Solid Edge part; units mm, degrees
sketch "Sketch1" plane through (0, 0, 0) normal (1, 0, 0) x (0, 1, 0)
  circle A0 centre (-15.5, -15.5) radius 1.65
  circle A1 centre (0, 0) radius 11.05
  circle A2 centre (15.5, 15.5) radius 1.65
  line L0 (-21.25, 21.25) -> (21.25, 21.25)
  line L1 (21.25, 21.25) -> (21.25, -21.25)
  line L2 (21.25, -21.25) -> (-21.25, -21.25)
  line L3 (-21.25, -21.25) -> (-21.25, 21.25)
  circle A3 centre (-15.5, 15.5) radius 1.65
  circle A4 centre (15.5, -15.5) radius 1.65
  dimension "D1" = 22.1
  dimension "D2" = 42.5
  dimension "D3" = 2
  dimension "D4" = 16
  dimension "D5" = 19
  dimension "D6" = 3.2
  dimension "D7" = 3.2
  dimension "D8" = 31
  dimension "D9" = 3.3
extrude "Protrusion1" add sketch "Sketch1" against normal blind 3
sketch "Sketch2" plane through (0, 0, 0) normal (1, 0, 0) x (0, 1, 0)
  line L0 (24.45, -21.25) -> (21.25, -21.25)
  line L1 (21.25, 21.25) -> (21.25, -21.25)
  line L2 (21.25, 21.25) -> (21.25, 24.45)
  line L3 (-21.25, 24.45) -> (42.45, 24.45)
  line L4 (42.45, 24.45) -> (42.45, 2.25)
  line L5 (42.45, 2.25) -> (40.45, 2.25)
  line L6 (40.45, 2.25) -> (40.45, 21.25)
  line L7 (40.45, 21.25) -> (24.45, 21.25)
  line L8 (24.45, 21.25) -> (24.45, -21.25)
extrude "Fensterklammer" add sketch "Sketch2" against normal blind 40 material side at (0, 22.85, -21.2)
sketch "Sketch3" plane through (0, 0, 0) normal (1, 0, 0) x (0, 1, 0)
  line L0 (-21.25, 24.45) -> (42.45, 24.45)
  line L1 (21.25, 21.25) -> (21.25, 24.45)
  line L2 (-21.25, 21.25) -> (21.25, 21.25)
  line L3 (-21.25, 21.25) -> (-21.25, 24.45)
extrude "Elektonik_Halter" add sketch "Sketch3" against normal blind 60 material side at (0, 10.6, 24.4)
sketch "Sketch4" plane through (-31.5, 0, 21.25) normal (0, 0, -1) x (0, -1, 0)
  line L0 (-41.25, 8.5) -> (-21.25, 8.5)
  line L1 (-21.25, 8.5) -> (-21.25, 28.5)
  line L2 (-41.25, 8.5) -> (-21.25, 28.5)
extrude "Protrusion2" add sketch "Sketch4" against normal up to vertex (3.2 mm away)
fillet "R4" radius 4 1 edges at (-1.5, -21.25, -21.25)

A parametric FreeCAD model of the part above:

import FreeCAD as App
import Part
import Sketcher
from FreeCAD import Vector


def edges_at(feature, points):
    """Names of the edges that pass closest to the given points."""
    edges = feature.Shape.Edges
    near = lambda p: min(range(len(edges)), key=lambda i: edges[i].distToShape(Part.Vertex(*p))[0])
    return sorted({f"Edge{near(p) + 1}" for p in points})

doc = App.newDocument("Part")
body = doc.addObject("PartDesign::Body", "Body")

# Sketch on YZ plane
sketch1 = doc.addObject("Sketcher::SketchObject", "Sketch")
body.addObject(sketch1)
sketch1.AttachmentSupport = (doc.YZ_Plane, [""])
sketch1.MapMode = "FlatFace"
sketch1.addGeometry(Part.LineSegment(Vector(21.2, 21.2, 0), Vector(-21.2, 21.2, 0)), False)
sketch1.addGeometry(Part.LineSegment(Vector(-21.2, 21.2, 0), Vector(-21.2, -21.2, 0)), False)
sketch1.addGeometry(Part.LineSegment(Vector(-21.2, -21.2, 0), Vector(21.2, -21.2, 0)), False)
sketch1.addGeometry(Part.LineSegment(Vector(21.2, -21.2, 0), Vector(21.2, 21.2, 0)), False)
sketch1.addGeometry(Part.Circle(Vector(-15.5, -15.5, 0), Vector(0, 0, 1), 1.6), False)
sketch1.addGeometry(Part.Circle(Vector(15.5, -15.5, 0), Vector(0, 0, 1), 1.6), False)
sketch1.addGeometry(Part.Circle(Vector(-15.5, 15.5, 0), Vector(0, 0, 1), 1.6), False)
sketch1.addGeometry(Part.Circle(Vector(0, 0, 0), Vector(0, 0, 1), 11.1), False)
sketch1.addGeometry(Part.Circle(Vector(15.5, 15.5, 0), Vector(0, 0, 1), 1.6), False)
sketch1.addConstraint(Sketcher.Constraint("Coincident", 0, 2, 1, 1))
sketch1.addConstraint(Sketcher.Constraint("Coincident", 1, 2, 2, 1))
sketch1.addConstraint(Sketcher.Constraint("Coincident", 2, 2, 3, 1))
sketch1.addConstraint(Sketcher.Constraint("Coincident", 3, 2, 0, 1))
sketch1.addConstraint(Sketcher.Constraint("Horizontal", 0))
sketch1.addConstraint(Sketcher.Constraint("Vertical", 1))
sketch1.addConstraint(Sketcher.Constraint("Horizontal", 2))
sketch1.addConstraint(Sketcher.Constraint("Vertical", 3))
sketch1.addConstraint(Sketcher.Constraint("Coincident", 7, 3, -1, 1))
sketch1.addConstraint(Sketcher.Constraint("Equal", 4, 5))
sketch1.addConstraint(Sketcher.Constraint("Equal", 5, 6))
sketch1.addConstraint(Sketcher.Constraint("Equal", 6, 8))
sketch1.addConstraint(Sketcher.Constraint("Symmetric", 5, 3, 6, 3, -1, 1))
sketch1.addConstraint(Sketcher.Constraint("Symmetric", 4, 3, 8, 3, -1, 1))
sketch1.addConstraint(Sketcher.Constraint("Symmetric", 0, 2, 2, 2, -1, 1))
sketch1.addConstraint(Sketcher.Constraint("Symmetric", 4, 3, 5, 3, -2))
sketch1.addConstraint(Sketcher.Constraint("Equal", 2, 1))
sketch1.addConstraint(Sketcher.Constraint("Diameter", 4, 3.3))
sketch1.addConstraint(Sketcher.Constraint("Diameter", 7, 22.1))
sketch1.addConstraint(Sketcher.Constraint("DistanceX", 0, 2, 0, 1, 42.5))
sketch1.addConstraint(Sketcher.Constraint("DistanceX", 4, 3, 5, 3, 31.0))
sketch1.addConstraint(Sketcher.Constraint("DistanceY", 4, 3, 6, 3, 31.0))
pad1 = doc.addObject("PartDesign::Pad", "Pad")
body.addObject(pad1)
pad1.Profile = sketch1
pad1.Length = 3
pad1.Reversed = True

# Sketch on YZ plane
sketch2 = doc.addObject("Sketcher::SketchObject", "Sketch001")
body.addObject(sketch2)
sketch2.AttachmentSupport = (doc.YZ_Plane, [""])
sketch2.MapMode = "FlatFace"
sketch2.addGeometry(Part.LineSegment(Vector(21.2, -21.2, 0), Vector(24.4, -21.2, 0)), False)
sketch2.addGeometry(Part.LineSegment(Vector(24.4, -21.2, 0), Vector(24.4, 21.2, 0)), False)
sketch2.addGeometry(Part.LineSegment(Vector(24.4, 21.2, 0), Vector(40.5, 21.2, 0)), False)
sketch2.addGeometry(Part.LineSegment(Vector(40.5, 21.2, 0), Vector(40.5, 2.2, 0)), False)
sketch2.addGeometry(Part.LineSegment(Vector(40.5, 2.2, 0), Vector(42.5, 2.2, 0)), False)
sketch2.addGeometry(Part.LineSegment(Vector(42.5, 2.2, 0), Vector(42.5, 24.4, 0)), False)
sketch2.addGeometry(Part.LineSegment(Vector(42.5, 24.4, 0), Vector(21.2, 24.4, 0)), False)
sketch2.addGeometry(Part.LineSegment(Vector(21.2, 24.4, 0), Vector(21.2, -21.2, 0)), False)
sketch2.addConstraint(Sketcher.Constraint("Coincident", 0, 2, 1, 1))
sketch2.addConstraint(Sketcher.Constraint("Coincident", 1, 2, 2, 1))
sketch2.addConstraint(Sketcher.Constraint("Coincident", 2, 2, 3, 1))
sketch2.addConstraint(Sketcher.Constraint("Coincident", 3, 2, 4, 1))
sketch2.addConstraint(Sketcher.Constraint("Coincident", 4, 2, 5, 1))
sketch2.addConstraint(Sketcher.Constraint("Coincident", 5, 2, 6, 1))
sketch2.addConstraint(Sketcher.Constraint("Coincident", 6, 2, 7, 1))
sketch2.addConstraint(Sketcher.Constraint("Coincident", 7, 2, 0, 1))
sketch2.addConstraint(Sketcher.Constraint("Horizontal", 0))
sketch2.addConstraint(Sketcher.Constraint("Vertical", 1))
sketch2.addConstraint(Sketcher.Constraint("Horizontal", 2))
sketch2.addConstraint(Sketcher.Constraint("Vertical", 3))
sketch2.addConstraint(Sketcher.Constraint("Horizontal", 4))
sketch2.addConstraint(Sketcher.Constraint("Vertical", 5))
sketch2.addConstraint(Sketcher.Constraint("Horizontal", 6))
sketch2.addConstraint(Sketcher.Constraint("Vertical", 7))
sketch2.addConstraint(Sketcher.Constraint("DistanceX", 2, 1, 2, 2, 16.0))
sketch2.addConstraint(Sketcher.Constraint("DistanceX", 4, 1, 4, 2, 2.0))
sketch2.addConstraint(Sketcher.Constraint("DistanceY", 3, 2, 3, 1, 19.0))
sketch2.addConstraint(Sketcher.Constraint("DistanceX", 0, 1, 0, 2, 3.2))
sketch2.addConstraint(Sketcher.Constraint("DistanceY", 1, 1, 1, 2, 42.5))
sketch2.addConstraint(Sketcher.Constraint("DistanceY", 5, 1, 5, 2, 22.2))
sketch2.addConstraint(Sketcher.Constraint("DistanceX", -1, 1, 0, 2, 24.45))
sketch2.addConstraint(Sketcher.Constraint("DistanceY", 0, 2, -1, 1, 21.25))
pad2 = doc.addObject("PartDesign::Pad", "Pad001")
body.addObject(pad2)
pad2.Profile = sketch2
pad2.Length = 40
pad2.Reversed = True

# Sketch on YZ plane
sketch3 = doc.addObject("Sketcher::SketchObject", "Sketch002")
body.addObject(sketch3)
sketch3.AttachmentSupport = (doc.YZ_Plane, [""])
sketch3.MapMode = "FlatFace"
sketch3.addGeometry(Part.LineSegment(Vector(21.2, 24.4, 0), Vector(-21.2, 24.4, 0)), False)
sketch3.addGeometry(Part.LineSegment(Vector(-21.2, 24.4, 0), Vector(-21.2, 21.2, 0)), False)
sketch3.addGeometry(Part.LineSegment(Vector(-21.2, 21.2, 0), Vector(21.2, 21.2, 0)), False)
sketch3.addGeometry(Part.LineSegment(Vector(21.2, 21.2, 0), Vector(21.2, 24.4, 0)), False)
sketch3.addConstraint(Sketcher.Constraint("Coincident", 0, 2, 1, 1))
sketch3.addConstraint(Sketcher.Constraint("Coincident", 1, 2, 2, 1))
sketch3.addConstraint(Sketcher.Constraint("Coincident", 2, 2, 3, 1))
sketch3.addConstraint(Sketcher.Constraint("Coincident", 3, 2, 0, 1))
sketch3.addConstraint(Sketcher.Constraint("Horizontal", 0))
sketch3.addConstraint(Sketcher.Constraint("Vertical", 1))
sketch3.addConstraint(Sketcher.Constraint("Horizontal", 2))
sketch3.addConstraint(Sketcher.Constraint("Vertical", 3))
sketch3.addConstraint(Sketcher.Constraint("DistanceX", 0, 2, 0, 1, 42.5))
sketch3.addConstraint(Sketcher.Constraint("DistanceY", 1, 2, 1, 1, 3.2))
sketch3.addConstraint(Sketcher.Constraint("DistanceX", 0, 2, -1, 1, 21.25))
sketch3.addConstraint(Sketcher.Constraint("DistanceY", -1, 1, 0, 2, 24.45))
pad3 = doc.addObject("PartDesign::Pad", "Pad002")
body.addObject(pad3)
pad3.Profile = sketch3
pad3.Length = 60
pad3.Reversed = True

# Sketch on XY plane
sketch4 = doc.addObject("Sketcher::SketchObject", "Sketch003")
body.addObject(sketch4)
sketch4.AttachmentSupport = (doc.XY_Plane, [""])
sketch4.MapMode = "FlatFace"
sketch4.AttachmentOffset = App.Placement(Vector(0, 0, 21.25), App.Rotation())
sketch4.addGeometry(Part.LineSegment(Vector(-60, 21, 0), Vector(-40, 41, 0)), False)
sketch4.addGeometry(Part.LineSegment(Vector(-40, 41, 0), Vector(-40, 21, 0)), False)
sketch4.addGeometry(Part.LineSegment(Vector(-40, 21, 0), Vector(-60, 21, 0)), False)
sketch4.addConstraint(Sketcher.Constraint("Coincident", 0, 2, 1, 1))
sketch4.addConstraint(Sketcher.Constraint("Coincident", 1, 2, 2, 1))
sketch4.addConstraint(Sketcher.Constraint("Coincident", 2, 2, 0, 1))
sketch4.addConstraint(Sketcher.Constraint("Vertical", 1))
sketch4.addConstraint(Sketcher.Constraint("Horizontal", 2))
sketch4.addConstraint(Sketcher.Constraint("Equal", 2, 1))
sketch4.addConstraint(Sketcher.Constraint("DistanceX", 2, 2, 2, 1, 20.0))
sketch4.addConstraint(Sketcher.Constraint("DistanceX", 0, 2, -1, 1, 40.0))
sketch4.addConstraint(Sketcher.Constraint("DistanceY", -1, 1, 0, 2, 41.25))
pad4 = doc.addObject("PartDesign::Pad", "Pad003")
body.addObject(pad4)
pad4.Profile = sketch4
pad4.Length = 3.2
doc.recompute()

fillet = doc.addObject("PartDesign::Fillet", "Fillet")
body.addObject(fillet)
fillet.Base = (pad4, edges_at(pad4, [(-1.5, -21.25, -21.25)]))
fillet.Radius = 4

doc.recompute()
